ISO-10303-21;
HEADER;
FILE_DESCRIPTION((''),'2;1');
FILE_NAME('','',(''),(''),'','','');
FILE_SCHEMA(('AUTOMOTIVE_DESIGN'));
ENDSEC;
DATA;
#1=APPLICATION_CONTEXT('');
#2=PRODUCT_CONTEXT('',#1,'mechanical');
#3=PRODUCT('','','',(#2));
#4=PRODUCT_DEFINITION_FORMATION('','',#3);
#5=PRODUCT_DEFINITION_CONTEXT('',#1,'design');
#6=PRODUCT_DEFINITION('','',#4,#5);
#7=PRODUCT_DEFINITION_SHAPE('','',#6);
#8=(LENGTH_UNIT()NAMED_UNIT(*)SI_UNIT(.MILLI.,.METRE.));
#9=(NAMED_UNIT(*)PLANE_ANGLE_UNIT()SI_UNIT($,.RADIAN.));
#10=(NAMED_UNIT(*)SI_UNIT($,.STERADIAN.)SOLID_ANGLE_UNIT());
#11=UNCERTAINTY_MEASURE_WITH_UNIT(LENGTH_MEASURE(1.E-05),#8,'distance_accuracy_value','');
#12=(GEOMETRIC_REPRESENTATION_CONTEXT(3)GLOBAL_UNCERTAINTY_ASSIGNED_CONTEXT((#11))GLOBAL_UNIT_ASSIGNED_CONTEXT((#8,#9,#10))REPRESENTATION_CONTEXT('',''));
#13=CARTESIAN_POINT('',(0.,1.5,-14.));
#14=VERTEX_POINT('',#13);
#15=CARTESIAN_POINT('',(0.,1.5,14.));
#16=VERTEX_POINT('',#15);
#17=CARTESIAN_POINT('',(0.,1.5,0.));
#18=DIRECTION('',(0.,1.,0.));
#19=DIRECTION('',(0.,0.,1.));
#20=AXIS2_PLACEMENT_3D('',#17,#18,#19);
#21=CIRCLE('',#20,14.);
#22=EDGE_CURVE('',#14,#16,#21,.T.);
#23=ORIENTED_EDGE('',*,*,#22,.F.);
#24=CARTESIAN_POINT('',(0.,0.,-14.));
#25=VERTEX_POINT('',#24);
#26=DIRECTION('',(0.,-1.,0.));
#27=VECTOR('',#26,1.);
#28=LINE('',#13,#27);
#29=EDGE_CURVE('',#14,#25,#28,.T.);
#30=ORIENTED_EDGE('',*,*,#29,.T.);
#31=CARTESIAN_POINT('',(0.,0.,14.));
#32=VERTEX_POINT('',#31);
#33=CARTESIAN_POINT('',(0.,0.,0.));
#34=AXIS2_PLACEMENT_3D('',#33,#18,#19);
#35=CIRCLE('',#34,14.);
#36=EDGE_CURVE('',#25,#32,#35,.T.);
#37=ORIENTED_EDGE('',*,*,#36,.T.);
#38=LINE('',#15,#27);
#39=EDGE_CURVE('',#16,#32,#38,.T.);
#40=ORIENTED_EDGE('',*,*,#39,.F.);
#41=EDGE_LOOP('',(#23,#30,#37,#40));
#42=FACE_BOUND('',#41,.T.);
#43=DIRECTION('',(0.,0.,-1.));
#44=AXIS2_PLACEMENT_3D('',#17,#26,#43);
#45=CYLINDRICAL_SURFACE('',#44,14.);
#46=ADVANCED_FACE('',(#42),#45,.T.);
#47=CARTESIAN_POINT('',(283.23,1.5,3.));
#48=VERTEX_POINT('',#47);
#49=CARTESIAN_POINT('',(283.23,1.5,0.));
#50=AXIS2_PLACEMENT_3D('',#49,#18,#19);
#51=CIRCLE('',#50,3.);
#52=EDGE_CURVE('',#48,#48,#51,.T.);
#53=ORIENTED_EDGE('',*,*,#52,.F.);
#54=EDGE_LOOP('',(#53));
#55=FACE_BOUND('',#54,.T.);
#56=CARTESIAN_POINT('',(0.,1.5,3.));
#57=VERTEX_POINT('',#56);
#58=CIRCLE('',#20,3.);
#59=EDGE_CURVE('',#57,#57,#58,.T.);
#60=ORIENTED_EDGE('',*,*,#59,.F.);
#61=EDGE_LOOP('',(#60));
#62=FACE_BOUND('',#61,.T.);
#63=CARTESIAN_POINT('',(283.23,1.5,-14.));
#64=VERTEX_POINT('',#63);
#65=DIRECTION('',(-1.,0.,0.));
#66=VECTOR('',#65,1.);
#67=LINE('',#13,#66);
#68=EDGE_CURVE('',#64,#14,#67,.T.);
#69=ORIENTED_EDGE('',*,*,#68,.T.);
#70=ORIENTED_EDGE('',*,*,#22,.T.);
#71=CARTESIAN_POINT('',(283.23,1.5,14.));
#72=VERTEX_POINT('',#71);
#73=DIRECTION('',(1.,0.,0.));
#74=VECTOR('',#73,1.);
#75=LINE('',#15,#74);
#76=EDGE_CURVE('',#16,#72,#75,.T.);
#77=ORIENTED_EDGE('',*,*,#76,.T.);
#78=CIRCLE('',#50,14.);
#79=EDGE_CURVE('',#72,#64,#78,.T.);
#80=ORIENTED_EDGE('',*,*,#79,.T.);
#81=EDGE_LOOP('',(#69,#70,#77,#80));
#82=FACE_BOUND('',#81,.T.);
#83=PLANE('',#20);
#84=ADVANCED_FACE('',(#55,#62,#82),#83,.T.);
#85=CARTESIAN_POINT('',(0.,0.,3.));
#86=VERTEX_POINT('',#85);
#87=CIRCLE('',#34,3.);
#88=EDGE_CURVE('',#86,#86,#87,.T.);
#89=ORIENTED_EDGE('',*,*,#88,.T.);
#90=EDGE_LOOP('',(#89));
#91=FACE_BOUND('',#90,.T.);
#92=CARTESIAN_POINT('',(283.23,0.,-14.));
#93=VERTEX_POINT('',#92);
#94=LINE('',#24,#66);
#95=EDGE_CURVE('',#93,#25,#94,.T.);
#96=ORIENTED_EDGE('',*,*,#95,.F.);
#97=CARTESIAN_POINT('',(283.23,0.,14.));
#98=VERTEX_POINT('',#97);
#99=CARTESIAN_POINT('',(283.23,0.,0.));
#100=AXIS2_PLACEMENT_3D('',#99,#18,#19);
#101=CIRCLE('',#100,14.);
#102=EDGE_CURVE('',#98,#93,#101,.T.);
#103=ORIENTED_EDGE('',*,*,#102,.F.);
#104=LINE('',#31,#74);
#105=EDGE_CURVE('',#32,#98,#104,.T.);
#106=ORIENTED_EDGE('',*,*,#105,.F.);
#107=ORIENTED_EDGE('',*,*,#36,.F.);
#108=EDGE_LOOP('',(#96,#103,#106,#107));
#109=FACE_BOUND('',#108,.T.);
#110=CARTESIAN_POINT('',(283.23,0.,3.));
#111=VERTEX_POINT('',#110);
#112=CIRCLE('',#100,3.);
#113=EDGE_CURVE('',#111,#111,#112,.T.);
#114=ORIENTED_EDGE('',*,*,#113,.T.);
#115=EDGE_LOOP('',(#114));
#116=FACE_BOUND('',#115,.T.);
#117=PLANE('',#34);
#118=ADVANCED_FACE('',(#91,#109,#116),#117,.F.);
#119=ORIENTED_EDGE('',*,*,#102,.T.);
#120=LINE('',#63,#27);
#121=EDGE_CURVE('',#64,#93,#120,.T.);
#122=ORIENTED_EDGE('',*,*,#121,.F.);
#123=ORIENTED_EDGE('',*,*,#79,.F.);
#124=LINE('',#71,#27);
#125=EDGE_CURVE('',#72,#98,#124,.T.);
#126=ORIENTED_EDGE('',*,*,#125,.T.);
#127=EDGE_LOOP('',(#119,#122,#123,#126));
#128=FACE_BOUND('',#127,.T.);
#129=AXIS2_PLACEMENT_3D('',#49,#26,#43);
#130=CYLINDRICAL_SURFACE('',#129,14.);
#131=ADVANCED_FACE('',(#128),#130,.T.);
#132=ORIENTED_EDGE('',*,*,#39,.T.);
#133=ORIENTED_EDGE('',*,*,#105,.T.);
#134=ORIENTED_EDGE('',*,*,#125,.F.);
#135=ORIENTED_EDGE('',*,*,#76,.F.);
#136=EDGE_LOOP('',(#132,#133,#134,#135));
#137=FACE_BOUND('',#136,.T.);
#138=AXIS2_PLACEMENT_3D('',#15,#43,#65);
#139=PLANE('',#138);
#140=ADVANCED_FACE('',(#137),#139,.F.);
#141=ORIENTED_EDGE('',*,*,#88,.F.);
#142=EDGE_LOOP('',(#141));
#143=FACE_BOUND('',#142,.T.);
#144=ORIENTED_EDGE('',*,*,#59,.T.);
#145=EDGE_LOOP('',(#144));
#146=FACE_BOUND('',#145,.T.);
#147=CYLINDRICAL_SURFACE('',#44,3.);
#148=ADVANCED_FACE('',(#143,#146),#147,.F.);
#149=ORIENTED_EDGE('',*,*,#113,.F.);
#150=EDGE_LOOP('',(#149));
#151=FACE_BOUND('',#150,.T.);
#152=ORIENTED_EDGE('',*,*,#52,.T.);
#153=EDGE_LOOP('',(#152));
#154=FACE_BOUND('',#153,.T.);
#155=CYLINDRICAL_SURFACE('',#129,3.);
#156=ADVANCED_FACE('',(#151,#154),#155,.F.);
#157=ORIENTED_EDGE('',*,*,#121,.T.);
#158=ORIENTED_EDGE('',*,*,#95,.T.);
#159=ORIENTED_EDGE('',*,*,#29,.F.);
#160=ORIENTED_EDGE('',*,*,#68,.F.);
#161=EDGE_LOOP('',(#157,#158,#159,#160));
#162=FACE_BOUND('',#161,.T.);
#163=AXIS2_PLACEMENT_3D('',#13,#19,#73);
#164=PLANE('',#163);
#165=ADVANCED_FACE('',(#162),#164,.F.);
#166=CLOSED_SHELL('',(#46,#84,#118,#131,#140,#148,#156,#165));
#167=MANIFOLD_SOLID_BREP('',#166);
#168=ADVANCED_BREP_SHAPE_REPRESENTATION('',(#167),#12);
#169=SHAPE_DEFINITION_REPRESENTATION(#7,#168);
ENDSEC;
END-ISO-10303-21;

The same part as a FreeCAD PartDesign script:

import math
import FreeCAD as App
import Part
import Sketcher

doc = App.newDocument("Part")
body = doc.addObject("PartDesign::Body", "Body")

sketch1 = body.newObject("Sketcher::SketchObject", "Sketch")
sketch1.AttachmentSupport = (doc.getObject("XZ_Plane"), [""])
sketch1.MapMode = "FlatFace"
sketch1.addGeometry(Part.LineSegment(App.Vector(283.2, -14, 0), App.Vector(0, -14, 0)), False)
sketch1.addGeometry(Part.ArcOfCircle(Part.Circle(App.Vector(0, 0, 0), App.Vector(0, 0, 1), 14), math.radians(90), math.radians(270)), False)
sketch1.addGeometry(Part.LineSegment(App.Vector(0, 14, 0), App.Vector(283.2, 14, 0)), False)
sketch1.addGeometry(Part.ArcOfCircle(Part.Circle(App.Vector(283.2, 0, 0), App.Vector(0, 0, 1), 14), math.radians(-90), math.radians(90)), False)
sketch1.addGeometry(Part.Circle(App.Vector(283.2, 0, 0), App.Vector(0, 0, 1), 3), False)
sketch1.addGeometry(Part.Circle(App.Vector(0, 0, 0), App.Vector(0, 0, 1), 3), False)
sketch1.addConstraint(Sketcher.Constraint("Tangent", 0, 2, 1, 2))
sketch1.addConstraint(Sketcher.Constraint("Tangent", 1, 1, 2, 1))
sketch1.addConstraint(Sketcher.Constraint("Tangent", 2, 2, 3, 2))
sketch1.addConstraint(Sketcher.Constraint("Tangent", 3, 1, 0, 1))
sketch1.addConstraint(Sketcher.Constraint("Horizontal", 0))
sketch1.addConstraint(Sketcher.Constraint("Horizontal", 2))
sketch1.addConstraint(Sketcher.Constraint("Coincident", 1, 3, -1, 1))
sketch1.addConstraint(Sketcher.Constraint("Coincident", 5, 3, -1, 1))
sketch1.addConstraint(Sketcher.Constraint("Coincident", 4, 3, 3, 3))
sketch1.addConstraint(Sketcher.Constraint("Equal", 4, 5))
sketch1.addConstraint(Sketcher.Constraint("Diameter", 4, 6.0))
sketch1.addConstraint(Sketcher.Constraint("Radius", 1, 14.0))
sketch1.addConstraint(Sketcher.Constraint("DistanceX", 0, 2, 0, 1, 283.23))
pad1 = body.newObject("PartDesign::Pad", "Pad")
pad1.Profile = sketch1
pad1.Length = 1.5
pad1.Reversed = True

doc.recompute()
